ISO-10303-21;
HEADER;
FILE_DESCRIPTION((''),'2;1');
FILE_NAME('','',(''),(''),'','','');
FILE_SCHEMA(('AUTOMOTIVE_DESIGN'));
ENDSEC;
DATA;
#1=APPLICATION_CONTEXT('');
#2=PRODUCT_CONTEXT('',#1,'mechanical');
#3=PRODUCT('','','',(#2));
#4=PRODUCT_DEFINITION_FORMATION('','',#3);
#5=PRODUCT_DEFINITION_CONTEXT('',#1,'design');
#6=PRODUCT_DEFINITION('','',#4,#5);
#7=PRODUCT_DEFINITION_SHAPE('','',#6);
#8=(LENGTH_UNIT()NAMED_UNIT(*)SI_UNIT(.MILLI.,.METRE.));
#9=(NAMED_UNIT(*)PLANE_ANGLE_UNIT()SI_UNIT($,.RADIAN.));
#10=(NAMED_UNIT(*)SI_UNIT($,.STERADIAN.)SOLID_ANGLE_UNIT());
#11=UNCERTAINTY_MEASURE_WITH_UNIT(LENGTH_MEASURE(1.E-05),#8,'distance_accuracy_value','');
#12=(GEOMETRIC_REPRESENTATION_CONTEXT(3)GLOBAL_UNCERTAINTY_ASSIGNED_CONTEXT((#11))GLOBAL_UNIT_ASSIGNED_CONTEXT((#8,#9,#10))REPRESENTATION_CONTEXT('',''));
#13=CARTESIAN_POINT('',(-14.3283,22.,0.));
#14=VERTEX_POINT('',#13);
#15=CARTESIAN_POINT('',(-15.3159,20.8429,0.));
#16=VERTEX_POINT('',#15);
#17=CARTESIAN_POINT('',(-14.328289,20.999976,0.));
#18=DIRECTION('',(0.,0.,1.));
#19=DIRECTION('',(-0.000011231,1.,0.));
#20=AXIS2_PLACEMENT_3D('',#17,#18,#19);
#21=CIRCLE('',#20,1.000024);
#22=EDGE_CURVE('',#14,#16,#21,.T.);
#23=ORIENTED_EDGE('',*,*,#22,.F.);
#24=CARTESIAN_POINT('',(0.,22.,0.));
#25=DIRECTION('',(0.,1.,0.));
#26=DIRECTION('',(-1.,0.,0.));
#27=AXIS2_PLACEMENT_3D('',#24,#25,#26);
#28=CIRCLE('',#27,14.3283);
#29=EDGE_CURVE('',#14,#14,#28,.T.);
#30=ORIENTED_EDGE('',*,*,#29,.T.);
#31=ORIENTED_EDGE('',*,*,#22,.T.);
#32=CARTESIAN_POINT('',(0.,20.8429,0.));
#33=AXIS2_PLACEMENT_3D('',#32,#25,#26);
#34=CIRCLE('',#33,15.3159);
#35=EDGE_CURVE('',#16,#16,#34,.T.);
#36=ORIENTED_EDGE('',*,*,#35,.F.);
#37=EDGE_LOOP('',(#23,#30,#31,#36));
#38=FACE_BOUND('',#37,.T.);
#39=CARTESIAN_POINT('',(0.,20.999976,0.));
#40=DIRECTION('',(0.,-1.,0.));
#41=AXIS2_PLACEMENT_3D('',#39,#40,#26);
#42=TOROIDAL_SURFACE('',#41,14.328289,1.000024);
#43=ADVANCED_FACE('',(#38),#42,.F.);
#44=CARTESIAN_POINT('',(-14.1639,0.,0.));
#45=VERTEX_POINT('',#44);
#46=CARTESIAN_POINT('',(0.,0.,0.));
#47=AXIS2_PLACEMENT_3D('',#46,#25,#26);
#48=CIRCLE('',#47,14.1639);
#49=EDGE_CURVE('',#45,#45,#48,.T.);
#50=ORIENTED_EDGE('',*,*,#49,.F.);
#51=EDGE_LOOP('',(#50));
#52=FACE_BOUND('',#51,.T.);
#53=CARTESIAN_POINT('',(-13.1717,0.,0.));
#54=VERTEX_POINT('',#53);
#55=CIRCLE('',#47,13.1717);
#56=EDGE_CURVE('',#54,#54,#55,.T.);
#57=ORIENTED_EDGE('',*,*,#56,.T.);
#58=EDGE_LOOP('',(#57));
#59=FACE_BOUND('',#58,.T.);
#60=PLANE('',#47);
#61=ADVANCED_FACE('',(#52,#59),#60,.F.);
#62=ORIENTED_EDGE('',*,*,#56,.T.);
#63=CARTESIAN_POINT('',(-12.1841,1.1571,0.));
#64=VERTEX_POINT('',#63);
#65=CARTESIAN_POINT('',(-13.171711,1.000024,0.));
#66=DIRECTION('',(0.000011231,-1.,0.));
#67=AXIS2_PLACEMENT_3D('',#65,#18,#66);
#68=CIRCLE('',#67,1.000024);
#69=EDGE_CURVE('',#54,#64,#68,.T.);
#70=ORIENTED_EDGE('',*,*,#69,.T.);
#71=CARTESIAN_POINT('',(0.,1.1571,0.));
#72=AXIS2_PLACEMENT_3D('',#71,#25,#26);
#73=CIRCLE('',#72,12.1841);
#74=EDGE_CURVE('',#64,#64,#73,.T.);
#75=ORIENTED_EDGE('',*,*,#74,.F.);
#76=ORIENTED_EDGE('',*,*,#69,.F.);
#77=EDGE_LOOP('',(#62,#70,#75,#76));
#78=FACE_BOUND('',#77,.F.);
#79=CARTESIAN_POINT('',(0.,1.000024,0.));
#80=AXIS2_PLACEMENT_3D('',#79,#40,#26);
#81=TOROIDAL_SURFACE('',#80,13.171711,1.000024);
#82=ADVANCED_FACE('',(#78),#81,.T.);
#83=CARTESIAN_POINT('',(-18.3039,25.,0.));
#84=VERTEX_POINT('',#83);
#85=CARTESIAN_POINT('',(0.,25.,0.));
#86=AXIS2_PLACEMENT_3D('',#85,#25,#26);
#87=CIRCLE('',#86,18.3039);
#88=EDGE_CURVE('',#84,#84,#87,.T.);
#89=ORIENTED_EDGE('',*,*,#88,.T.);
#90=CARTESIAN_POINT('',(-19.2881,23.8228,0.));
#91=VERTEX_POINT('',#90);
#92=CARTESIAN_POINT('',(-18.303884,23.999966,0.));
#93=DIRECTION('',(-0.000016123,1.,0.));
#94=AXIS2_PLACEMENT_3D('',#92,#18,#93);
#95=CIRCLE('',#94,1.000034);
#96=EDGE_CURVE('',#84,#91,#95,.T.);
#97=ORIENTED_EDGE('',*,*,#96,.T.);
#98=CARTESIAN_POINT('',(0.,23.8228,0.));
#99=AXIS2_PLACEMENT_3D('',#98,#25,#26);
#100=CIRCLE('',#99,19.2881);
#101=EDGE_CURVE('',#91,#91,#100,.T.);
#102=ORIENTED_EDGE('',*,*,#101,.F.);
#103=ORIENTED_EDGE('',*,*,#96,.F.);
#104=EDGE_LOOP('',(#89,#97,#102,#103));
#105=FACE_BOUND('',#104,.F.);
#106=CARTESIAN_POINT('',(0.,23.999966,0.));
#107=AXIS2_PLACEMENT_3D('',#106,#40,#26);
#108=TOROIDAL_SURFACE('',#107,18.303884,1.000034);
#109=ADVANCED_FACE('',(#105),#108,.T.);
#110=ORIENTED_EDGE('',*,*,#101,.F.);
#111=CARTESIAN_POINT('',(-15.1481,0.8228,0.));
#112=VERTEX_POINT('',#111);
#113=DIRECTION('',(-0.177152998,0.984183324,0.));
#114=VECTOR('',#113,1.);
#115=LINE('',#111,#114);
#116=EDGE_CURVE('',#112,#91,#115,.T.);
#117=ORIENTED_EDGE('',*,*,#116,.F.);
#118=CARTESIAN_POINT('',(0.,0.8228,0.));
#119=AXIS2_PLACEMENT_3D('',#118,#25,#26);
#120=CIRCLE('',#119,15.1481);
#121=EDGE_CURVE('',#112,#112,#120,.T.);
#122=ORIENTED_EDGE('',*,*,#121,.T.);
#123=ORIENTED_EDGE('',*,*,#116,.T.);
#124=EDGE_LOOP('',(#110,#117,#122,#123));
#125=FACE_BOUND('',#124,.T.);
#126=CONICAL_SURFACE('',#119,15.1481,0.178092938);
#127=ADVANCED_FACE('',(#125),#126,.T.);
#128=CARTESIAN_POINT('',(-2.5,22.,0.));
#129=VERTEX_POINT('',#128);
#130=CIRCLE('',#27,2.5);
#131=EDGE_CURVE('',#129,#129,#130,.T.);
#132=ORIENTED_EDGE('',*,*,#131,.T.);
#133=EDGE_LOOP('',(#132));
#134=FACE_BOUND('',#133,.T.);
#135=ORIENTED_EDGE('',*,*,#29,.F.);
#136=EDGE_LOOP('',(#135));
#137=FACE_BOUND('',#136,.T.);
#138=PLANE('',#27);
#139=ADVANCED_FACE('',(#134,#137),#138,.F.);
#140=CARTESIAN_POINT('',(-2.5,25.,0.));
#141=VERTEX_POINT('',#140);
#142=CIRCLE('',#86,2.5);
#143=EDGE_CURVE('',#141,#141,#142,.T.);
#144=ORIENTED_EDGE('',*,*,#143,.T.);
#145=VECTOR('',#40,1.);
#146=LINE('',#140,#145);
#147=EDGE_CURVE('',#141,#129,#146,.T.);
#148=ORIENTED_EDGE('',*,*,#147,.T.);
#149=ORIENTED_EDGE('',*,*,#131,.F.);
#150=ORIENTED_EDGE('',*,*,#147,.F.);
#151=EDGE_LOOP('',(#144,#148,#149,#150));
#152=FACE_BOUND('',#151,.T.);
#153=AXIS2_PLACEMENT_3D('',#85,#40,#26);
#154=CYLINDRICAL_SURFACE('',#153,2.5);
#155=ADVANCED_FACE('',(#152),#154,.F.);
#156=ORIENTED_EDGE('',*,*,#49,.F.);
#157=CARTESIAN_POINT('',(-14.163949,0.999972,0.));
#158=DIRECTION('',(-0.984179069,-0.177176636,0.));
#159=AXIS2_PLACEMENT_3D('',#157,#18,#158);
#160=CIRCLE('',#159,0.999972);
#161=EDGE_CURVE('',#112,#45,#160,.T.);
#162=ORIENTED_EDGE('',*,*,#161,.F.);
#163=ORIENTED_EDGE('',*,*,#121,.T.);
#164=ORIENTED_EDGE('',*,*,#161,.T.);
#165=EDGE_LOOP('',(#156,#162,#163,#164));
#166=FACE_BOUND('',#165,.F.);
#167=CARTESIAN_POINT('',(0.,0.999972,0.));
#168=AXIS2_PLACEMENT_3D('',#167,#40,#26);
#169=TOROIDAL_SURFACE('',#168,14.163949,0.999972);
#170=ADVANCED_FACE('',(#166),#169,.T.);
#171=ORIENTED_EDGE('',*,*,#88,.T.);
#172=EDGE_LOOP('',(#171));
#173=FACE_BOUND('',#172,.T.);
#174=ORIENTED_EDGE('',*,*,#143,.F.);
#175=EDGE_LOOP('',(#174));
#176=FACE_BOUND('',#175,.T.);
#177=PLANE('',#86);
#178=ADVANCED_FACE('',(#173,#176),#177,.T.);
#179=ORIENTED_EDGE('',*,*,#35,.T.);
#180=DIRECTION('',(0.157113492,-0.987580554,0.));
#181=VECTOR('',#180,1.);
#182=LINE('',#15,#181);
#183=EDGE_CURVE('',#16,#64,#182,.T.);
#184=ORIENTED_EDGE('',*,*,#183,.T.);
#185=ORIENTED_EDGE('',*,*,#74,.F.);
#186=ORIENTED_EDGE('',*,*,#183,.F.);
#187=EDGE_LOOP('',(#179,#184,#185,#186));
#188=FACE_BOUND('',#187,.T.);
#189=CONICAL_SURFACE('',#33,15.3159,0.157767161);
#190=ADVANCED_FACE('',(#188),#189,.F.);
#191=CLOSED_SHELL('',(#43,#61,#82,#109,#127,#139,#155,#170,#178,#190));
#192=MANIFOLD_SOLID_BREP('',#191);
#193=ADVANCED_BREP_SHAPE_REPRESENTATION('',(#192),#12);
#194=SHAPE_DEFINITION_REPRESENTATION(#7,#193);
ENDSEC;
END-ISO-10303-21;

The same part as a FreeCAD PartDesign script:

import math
import FreeCAD as App
import Part
import Sketcher

V = App.Vector
Q = App.Units.Quantity

doc = App.newDocument("Part")
body = doc.addObject("PartDesign::Body", "Body")

# Sketch on XY plane
sketch1 = body.newObject("Sketcher::SketchObject", "Sketch")
sketch1.AttachmentSupport = (doc.getObject("XY_Plane"), [""])
sketch1.MapMode = "FlatFace"
sketch1.addGeometry(Part.LineSegment(V(-14.2, 0, 0), V(-13.2, 0, 0)), False)
sketch1.addGeometry(Part.ArcOfCircle(Part.Circle(V(-13.2, 1, 0), V(0, 0, 1), 1), math.radians(-90), math.radians(9)), False)
sketch1.addGeometry(Part.LineSegment(V(-12.2, 1.2, 0), V(-15.3, 20.8, 0)), False)
sketch1.addGeometry(Part.ArcOfCircle(Part.Circle(V(-14.3, 21, 0), V(0, 0, 1), 1), math.radians(90), math.radians(189)), False)
sketch1.addGeometry(Part.LineSegment(V(-14.3, 22, 0), V(-2.5, 22, 0)), False)
sketch1.addGeometry(Part.LineSegment(V(-2.5, 22, 0), V(-2.5, 25, 0)), False)
sketch1.addGeometry(Part.LineSegment(V(-2.5, 25, 0), V(-18.3, 25, 0)), False)
sketch1.addGeometry(Part.ArcOfCircle(Part.Circle(V(-18.3, 24, 0), V(0, 0, 1), 1), math.radians(90), math.radians(190)), False)
sketch1.addGeometry(Part.LineSegment(V(-19.3, 23.8, 0), V(-15.1, 0.8, 0)), False)
sketch1.addGeometry(Part.ArcOfCircle(Part.Circle(V(-14.2, 1, 0), V(0, 0, 1), 1), math.radians(-170), math.radians(-90)), False)
sketch1.addConstraint(Sketcher.Constraint("Tangent", 0, 2, 1, 1))
sketch1.addConstraint(Sketcher.Constraint("Tangent", 1, 2, 2, 1))
sketch1.addConstraint(Sketcher.Constraint("Tangent", 2, 2, 3, 2))
sketch1.addConstraint(Sketcher.Constraint("Tangent", 3, 1, 4, 1))
sketch1.addConstraint(Sketcher.Constraint("Coincident", 4, 2, 5, 1))
sketch1.addConstraint(Sketcher.Constraint("Coincident", 5, 2, 6, 1))
sketch1.addConstraint(Sketcher.Constraint("Tangent", 6, 2, 7, 1))
sketch1.addConstraint(Sketcher.Constraint("Tangent", 7, 2, 8, 1))
sketch1.addConstraint(Sketcher.Constraint("Tangent", 8, 2, 9, 1))
sketch1.addConstraint(Sketcher.Constraint("Tangent", 9, 2, 0, 1))
sketch1.addConstraint(Sketcher.Constraint("Horizontal", 0))
sketch1.addConstraint(Sketcher.Constraint("Horizontal", 4))
sketch1.addConstraint(Sketcher.Constraint("Vertical", 5))
sketch1.addConstraint(Sketcher.Constraint("Horizontal", 6))
sketch1.addConstraint(Sketcher.Constraint("Equal", 1, 3))
sketch1.addConstraint(Sketcher.Constraint("Equal", 3, 7))
sketch1.addConstraint(Sketcher.Constraint("Equal", 7, 9))
sketch1.addConstraint(Sketcher.Constraint("PointOnObject", 0, 2, -1))
sketch1.addConstraint(Sketcher.Constraint("Radius", 1, Q("1 mm")))
sketch1.addConstraint(Sketcher.Constraint("DistanceY", 5, 1, 5, 2, Q("3 mm")))
sketch1.addConstraint(Sketcher.Constraint("DistanceY", -1, 1, 5, 2, Q("25 mm")))
sketch1.addConstraint(Sketcher.Constraint("DistanceX", 4, 2, -1, 1, Q("2.5 mm")))
sketch1.addConstraint(Sketcher.Constraint("Angle", 2, Q("99.0394 deg")))
sketch1.addConstraint(Sketcher.Constraint("DistanceX", 6, 2, 6, 1, Q("15.804 mm")))
sketch1.addConstraint(Sketcher.Constraint("DistanceX", 7, 3, 9, 3, Q("4.14 mm")))
sketch1.addConstraint(Sketcher.Constraint("DistanceX", 0, 1, 0, 2, Q("0.9922 mm")))
revolution = body.newObject("PartDesign::Revolution", "Revolution")
revolution.Profile = sketch1
revolution.ReferenceAxis = (sketch1, ["V_Axis"])
revolution.Angle = 360

doc.recompute()
